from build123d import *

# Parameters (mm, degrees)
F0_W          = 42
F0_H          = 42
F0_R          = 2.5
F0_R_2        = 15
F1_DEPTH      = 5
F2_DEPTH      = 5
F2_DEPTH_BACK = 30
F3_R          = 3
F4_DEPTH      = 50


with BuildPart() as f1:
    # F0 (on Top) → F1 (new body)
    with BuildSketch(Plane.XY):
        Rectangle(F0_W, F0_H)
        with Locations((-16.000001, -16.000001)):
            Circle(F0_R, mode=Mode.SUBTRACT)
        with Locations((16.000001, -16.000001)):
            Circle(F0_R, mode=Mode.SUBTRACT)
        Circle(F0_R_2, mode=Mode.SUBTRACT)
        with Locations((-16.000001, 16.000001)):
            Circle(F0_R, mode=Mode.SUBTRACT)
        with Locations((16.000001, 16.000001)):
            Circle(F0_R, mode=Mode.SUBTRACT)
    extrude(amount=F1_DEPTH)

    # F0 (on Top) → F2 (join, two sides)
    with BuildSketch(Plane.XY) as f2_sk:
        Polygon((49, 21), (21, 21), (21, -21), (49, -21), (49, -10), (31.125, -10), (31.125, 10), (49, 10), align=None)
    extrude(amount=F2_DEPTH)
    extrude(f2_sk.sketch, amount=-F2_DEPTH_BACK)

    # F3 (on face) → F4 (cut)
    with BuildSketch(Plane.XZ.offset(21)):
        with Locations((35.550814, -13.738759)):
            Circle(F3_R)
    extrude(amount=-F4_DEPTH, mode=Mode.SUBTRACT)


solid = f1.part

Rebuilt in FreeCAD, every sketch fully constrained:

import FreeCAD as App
import Part
import Sketcher
from FreeCAD import Vector
Q = App.Units.Quantity


def add_polygon(sketch, points):
    """Adds a closed chain of lines whose ends are joined by coincident constraints."""
    first, n = sketch.GeometryCount, len(points)
    for a, b in zip(points, points[1:] + points[:1]):
        sketch.addGeometry(Part.LineSegment(App.Vector(*a, 0), App.Vector(*b, 0)), False)
    for i in range(n):
        sketch.addConstraint(Sketcher.Constraint("Coincident", first + i, 2, first + (i + 1) % n, 1))

doc = App.newDocument("Part")
body = doc.addObject("PartDesign::Body", "Body")

# Sketch on XY plane
sketch1 = body.newObject("Sketcher::SketchObject", "Sketch")
sketch1.AttachmentSupport = (doc.getObject("XY_Plane"), [""])
sketch1.MapMode = "FlatFace"
add_polygon(sketch1, [(-21, 21), (-21, -21), (21, -21), (21, 21)])  # lines 0-3
sketch1.addGeometry(Part.Circle(Vector(-16, -16, 0), Vector(0, 0, 1), 2.5), False)  # 4
sketch1.addGeometry(Part.Circle(Vector(16, -16, 0), Vector(0, 0, 1), 2.5), False)  # 5
sketch1.addGeometry(Part.Circle(Vector(-16, 16, 0), Vector(0, 0, 1), 2.5), False)  # 6
sketch1.addGeometry(Part.Circle(Vector(0, 0, 0), Vector(0, 0, 1), 15), False)  # 7
sketch1.addGeometry(Part.Circle(Vector(16, 16, 0), Vector(0, 0, 1), 2.5), False)  # 8
sketch1.addConstraint([
    Sketcher.Constraint("Vertical", 0),
    Sketcher.Constraint("Horizontal", 1),
    Sketcher.Constraint("Vertical", 2),
    Sketcher.Constraint("Horizontal", 3),
    Sketcher.Constraint("Coincident", 7, 3, -1, 1),
    Sketcher.Constraint("Equal", 4, 5),
    Sketcher.Constraint("Equal", 5, 6),
    Sketcher.Constraint("Equal", 6, 8),
    Sketcher.Constraint("Symmetric", 5, 3, 6, 3, -1, 1),
    Sketcher.Constraint("Symmetric", 4, 3, 8, 3, -1, 1),
    Sketcher.Constraint("Symmetric", 0, 2, 2, 2, -1, 1),
    Sketcher.Constraint("Symmetric", 4, 3, 5, 3, -2),
    Sketcher.Constraint("Equal", 3, 0),
    Sketcher.Constraint("Diameter", 4, Q("5 mm")),
    Sketcher.Constraint("Diameter", 7, Q("30 mm")),
    Sketcher.Constraint("DistanceX", 1, 1, 1, 2, Q("42 mm")),
    Sketcher.Constraint("DistanceX", 4, 3, -1, 1, Q("16.000001 mm")),
    Sketcher.Constraint("DistanceY", 4, 3, -1, 1, Q("16.000001 mm")),
])
pad1 = body.newObject("PartDesign::Pad", "Pad")
pad1.Profile = sketch1
pad1.Length = 5

# Sketch on XY plane
sketch2 = body.newObject("Sketcher::SketchObject", "Sketch001")
sketch2.AttachmentSupport = (doc.getObject("XY_Plane"), [""])
sketch2.MapMode = "FlatFace"
add_polygon(sketch2, [(49, 21), (21, 21), (21, -21), (49, -21), (49, -10), (31, -10), (31, 10), (49, 10)])  # lines 0-7
sketch2.addConstraint([
    Sketcher.Constraint("Horizontal", 0),
    Sketcher.Constraint("Vertical", 1),
    Sketcher.Constraint("Horizontal", 2),
    Sketcher.Constraint("Vertical", 3),
    Sketcher.Constraint("Horizontal", 4),
    Sketcher.Constraint("Vertical", 5),
    Sketcher.Constraint("Horizontal", 6),
    Sketcher.Constraint("Vertical", 7),
    Sketcher.Constraint("Symmetric", 3, 2, 6, 2, -1),
    Sketcher.Constraint("Equal", 3, 7),
    Sketcher.Constraint("DistanceX", 0, 2, 0, 1, Q("28 mm")),
    Sketcher.Constraint("DistanceY", 1, 2, 1, 1, Q("42 mm")),
    Sketcher.Constraint("DistanceY", 3, 1, 3, 2, Q("11 mm")),
    Sketcher.Constraint("DistanceX", -1, 1, 0, 2, Q("21 mm")),
    Sketcher.Constraint("DistanceX", 4, 2, 4, 1, Q("17.875 mm")),
])
pad2 = body.newObject("PartDesign::Pad", "Pad001")
pad2.Profile = sketch2
pad2.Type = "TwoLengths"
pad2.Length = 5
pad2.Length2 = 30

# Sketch on XZ plane
sketch3 = body.newObject("Sketcher::SketchObject", "Sketch002")
sketch3.AttachmentSupport = (doc.getObject("XZ_Plane"), [""])
sketch3.MapMode = "FlatFace"
sketch3.AttachmentOffset = App.Placement(Vector(0, 0, 21), App.Rotation())
sketch3.addGeometry(Part.Circle(Vector(35.6, -13.7, 0), Vector(0, 0, 1), 3), False)
sketch3.addConstraint([
    Sketcher.Constraint("Diameter", 0, Q("6 mm")),
    Sketcher.Constraint("DistanceY", 0, 3, -1, 1, Q("13.738759 mm")),
    Sketcher.Constraint("DistanceX", -1, 1, 0, 3, Q("35.550814 mm")),
])
pocket1 = body.newObject("PartDesign::Pocket", "Pocket")
pocket1.Profile = sketch3
pocket1.Length = 50

doc.recompute()
